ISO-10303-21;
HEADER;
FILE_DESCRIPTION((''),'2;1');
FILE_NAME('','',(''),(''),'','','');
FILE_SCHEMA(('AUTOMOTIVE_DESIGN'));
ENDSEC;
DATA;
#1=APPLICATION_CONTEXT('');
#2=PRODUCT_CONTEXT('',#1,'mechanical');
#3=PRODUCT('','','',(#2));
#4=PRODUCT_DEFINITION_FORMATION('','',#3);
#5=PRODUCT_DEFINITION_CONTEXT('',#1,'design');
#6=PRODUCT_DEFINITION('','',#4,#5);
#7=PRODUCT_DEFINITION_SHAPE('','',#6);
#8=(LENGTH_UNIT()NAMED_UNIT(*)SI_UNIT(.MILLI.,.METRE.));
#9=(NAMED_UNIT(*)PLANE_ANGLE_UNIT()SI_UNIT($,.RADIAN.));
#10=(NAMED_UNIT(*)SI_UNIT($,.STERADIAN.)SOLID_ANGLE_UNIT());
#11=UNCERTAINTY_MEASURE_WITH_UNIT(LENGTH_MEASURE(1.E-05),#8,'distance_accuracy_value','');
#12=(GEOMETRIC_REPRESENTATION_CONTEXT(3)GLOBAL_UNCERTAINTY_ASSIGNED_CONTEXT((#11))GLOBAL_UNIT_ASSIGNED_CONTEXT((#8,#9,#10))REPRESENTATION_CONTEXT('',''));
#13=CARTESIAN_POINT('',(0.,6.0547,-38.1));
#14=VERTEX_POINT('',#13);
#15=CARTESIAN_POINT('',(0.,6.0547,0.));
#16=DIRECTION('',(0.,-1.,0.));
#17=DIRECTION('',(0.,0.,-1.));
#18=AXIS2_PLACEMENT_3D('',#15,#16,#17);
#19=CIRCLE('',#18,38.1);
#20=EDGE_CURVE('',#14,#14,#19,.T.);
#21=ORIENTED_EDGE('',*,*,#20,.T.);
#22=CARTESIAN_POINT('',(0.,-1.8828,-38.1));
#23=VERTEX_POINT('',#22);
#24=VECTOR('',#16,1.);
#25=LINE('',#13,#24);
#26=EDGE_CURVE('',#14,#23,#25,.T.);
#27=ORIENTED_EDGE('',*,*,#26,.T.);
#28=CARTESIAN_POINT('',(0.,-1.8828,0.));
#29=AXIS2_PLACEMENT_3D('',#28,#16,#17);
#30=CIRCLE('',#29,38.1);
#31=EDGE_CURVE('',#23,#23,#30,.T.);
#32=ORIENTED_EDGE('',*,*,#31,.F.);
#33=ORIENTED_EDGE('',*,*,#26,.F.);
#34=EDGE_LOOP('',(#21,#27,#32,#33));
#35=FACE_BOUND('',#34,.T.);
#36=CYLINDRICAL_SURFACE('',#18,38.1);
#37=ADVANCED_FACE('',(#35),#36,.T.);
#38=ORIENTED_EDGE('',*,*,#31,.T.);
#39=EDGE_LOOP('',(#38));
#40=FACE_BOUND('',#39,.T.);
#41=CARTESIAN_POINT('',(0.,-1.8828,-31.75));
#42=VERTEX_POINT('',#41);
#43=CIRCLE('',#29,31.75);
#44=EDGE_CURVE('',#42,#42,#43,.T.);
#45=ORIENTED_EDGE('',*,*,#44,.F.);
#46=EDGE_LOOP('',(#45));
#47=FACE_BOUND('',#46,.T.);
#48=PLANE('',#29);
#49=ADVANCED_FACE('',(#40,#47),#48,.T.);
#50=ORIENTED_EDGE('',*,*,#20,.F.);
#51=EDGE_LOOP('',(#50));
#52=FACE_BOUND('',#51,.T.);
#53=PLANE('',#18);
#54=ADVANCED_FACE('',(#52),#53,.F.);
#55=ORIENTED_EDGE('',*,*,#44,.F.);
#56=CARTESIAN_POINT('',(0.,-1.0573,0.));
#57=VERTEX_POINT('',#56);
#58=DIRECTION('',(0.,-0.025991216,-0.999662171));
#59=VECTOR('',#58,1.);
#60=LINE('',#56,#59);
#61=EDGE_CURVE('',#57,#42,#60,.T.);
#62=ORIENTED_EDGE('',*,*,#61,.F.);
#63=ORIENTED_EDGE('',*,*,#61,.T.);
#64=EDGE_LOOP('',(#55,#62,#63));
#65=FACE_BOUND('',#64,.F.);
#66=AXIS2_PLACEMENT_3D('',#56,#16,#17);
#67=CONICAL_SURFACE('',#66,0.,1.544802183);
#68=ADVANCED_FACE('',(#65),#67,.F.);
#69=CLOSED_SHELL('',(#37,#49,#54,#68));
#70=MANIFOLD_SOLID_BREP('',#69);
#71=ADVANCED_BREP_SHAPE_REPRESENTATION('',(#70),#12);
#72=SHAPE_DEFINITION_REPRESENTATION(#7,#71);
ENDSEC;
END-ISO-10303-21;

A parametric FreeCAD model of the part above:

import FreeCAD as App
import Part
import Sketcher
from FreeCAD import Vector
Q = App.Units.Quantity

doc = App.newDocument("Part")
params = doc.addObject("Spreadsheet::Sheet", "Params")
for row, (alias, value) in enumerate([
    ("sketch1_height", "1.5 in"),
    ("sketch1_width", "0.28 in"),
    ("sketch1_height2", "0.25 in"),
    ("sketch1_width2", "0.3125 in"),
    ("revolution_angle", "360 deg"),
], start=1):
    params.set(f"A{row}", alias)
    params.set(f"B{row}", "=" + value)
    params.setAlias(f"B{row}", alias)

body = doc.addObject("PartDesign::Body", "Body")

sketch1 = doc.addObject("Sketcher::SketchObject", "Sketch")
body.addObject(sketch1)
sketch1.AttachmentSupport = (doc.YZ_Plane, [""])
sketch1.MapMode = "FlatFace"
sketch1.addGeometry(Part.LineSegment(Vector(6.0547, -38.1, 0), Vector(6.0547, 0, 0)), False)
sketch1.addGeometry(Part.LineSegment(Vector(6.0547, 0, 0), Vector(-1.0573, 0, 0)), False)
sketch1.addGeometry(Part.LineSegment(Vector(-1.0573, 0, 0), Vector(-1.8828, -31.75, 0)), False)
sketch1.addGeometry(Part.LineSegment(Vector(-1.8828, -31.75, 0), Vector(-1.8828, -38.1, 0)), False)
sketch1.addGeometry(Part.LineSegment(Vector(-1.8828, -38.1, 0), Vector(6.0547, -38.1, 0)), False)
sketch1.addConstraint(Sketcher.Constraint("Coincident", 0, 2, 1, 1))
sketch1.addConstraint(Sketcher.Constraint("Coincident", 1, 2, 2, 1))
sketch1.addConstraint(Sketcher.Constraint("Coincident", 2, 2, 3, 1))
sketch1.addConstraint(Sketcher.Constraint("Coincident", 3, 2, 4, 1))
sketch1.addConstraint(Sketcher.Constraint("Coincident", 4, 2, 0, 1))
sketch1.addConstraint(Sketcher.Constraint("Vertical", 0))
sketch1.addConstraint(Sketcher.Constraint("Horizontal", 1))
sketch1.addConstraint(Sketcher.Constraint("Vertical", 3))
sketch1.addConstraint(Sketcher.Constraint("Horizontal", 4))
sketch1.addConstraint(Sketcher.Constraint("PointOnObject", 0, 2, -1))
sketch1.addConstraint(Sketcher.Constraint("DistanceY", 0, 1, 0, 2, Q("1.5 in")))
sketch1.addConstraint(Sketcher.Constraint("DistanceX", 1, 2, 1, 1, Q("0.28 in")))
sketch1.addConstraint(Sketcher.Constraint("DistanceY", 3, 2, 3, 1, Q("0.25 in")))
sketch1.addConstraint(Sketcher.Constraint("DistanceX", 4, 1, 4, 2, Q("0.3125 in")))
sketch1.addConstraint(Sketcher.Constraint("DistanceX", -1, 1, 0, 2, 6.0547))
sketch1.setExpression("Constraints[10]", "Params.sketch1_height")
sketch1.setExpression("Constraints[11]", "Params.sketch1_width")
sketch1.setExpression("Constraints[12]", "Params.sketch1_height2")
sketch1.setExpression("Constraints[13]", "Params.sketch1_width2")
revolution = doc.addObject("PartDesign::Revolution", "Revolution")
body.addObject(revolution)
revolution.Profile = sketch1
revolution.ReferenceAxis = (sketch1, ["H_Axis"])
revolution.setExpression("Angle", "Params.revolution_angle")

doc.recompute()
